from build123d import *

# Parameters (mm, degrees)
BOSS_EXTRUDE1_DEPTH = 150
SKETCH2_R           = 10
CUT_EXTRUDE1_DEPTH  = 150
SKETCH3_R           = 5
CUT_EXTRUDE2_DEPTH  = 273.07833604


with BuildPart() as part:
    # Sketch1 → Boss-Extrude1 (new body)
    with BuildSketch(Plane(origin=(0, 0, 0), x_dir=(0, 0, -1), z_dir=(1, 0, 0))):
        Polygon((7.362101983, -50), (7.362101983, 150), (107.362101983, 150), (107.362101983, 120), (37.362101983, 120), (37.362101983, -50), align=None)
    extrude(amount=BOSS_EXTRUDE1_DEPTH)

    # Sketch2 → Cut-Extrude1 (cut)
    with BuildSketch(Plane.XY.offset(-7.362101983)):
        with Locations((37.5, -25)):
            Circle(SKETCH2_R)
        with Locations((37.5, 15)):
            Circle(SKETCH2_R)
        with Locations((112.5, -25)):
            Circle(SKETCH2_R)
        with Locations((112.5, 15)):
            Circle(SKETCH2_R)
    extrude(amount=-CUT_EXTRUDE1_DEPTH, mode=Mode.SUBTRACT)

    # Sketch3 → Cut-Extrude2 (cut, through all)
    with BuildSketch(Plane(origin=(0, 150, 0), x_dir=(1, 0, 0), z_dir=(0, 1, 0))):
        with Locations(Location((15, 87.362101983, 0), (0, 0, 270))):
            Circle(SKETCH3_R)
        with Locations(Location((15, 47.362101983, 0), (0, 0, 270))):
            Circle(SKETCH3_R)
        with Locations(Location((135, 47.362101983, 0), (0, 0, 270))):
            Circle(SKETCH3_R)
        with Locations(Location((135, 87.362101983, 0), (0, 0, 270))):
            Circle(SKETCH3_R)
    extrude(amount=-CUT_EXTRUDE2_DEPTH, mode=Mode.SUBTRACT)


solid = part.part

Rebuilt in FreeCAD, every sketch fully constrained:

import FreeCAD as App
import Part
import Sketcher
from FreeCAD import Vector
Q = App.Units.Quantity

doc = App.newDocument("Part")
body = doc.addObject("PartDesign::Body", "Body")

# Sketch on YZ plane
sketch1 = body.newObject("Sketcher::SketchObject", "Sketch")
sketch1.AttachmentSupport = (doc.getObject("YZ_Plane"), [""])
sketch1.MapMode = "FlatFace"
sketch1.addGeometry([
    Part.LineSegment(Vector(150, -7, 0), Vector(-50, -7, 0)),  # 0
    Part.LineSegment(Vector(-50, -7, 0), Vector(-50, -37, 0)),  # 1
    Part.LineSegment(Vector(-50, -37, 0), Vector(120, -37, 0)),  # 2
    Part.LineSegment(Vector(120, -37, 0), Vector(120, -107, 0)),  # 3
    Part.LineSegment(Vector(120, -107, 0), Vector(150, -107, 0)),  # 4
    Part.LineSegment(Vector(150, -107, 0), Vector(150, -7, 0)),  # 5
], False)
sketch1.addConstraint([
    Sketcher.Constraint("Coincident", 0, 2, 1, 1),
    Sketcher.Constraint("Coincident", 1, 2, 2, 1),
    Sketcher.Constraint("Coincident", 2, 2, 3, 1),
    Sketcher.Constraint("Coincident", 3, 2, 4, 1),
    Sketcher.Constraint("Coincident", 4, 2, 5, 1),
    Sketcher.Constraint("Coincident", 5, 2, 0, 1),
    Sketcher.Constraint("Horizontal", 0),
    Sketcher.Constraint("Vertical", 1),
    Sketcher.Constraint("Horizontal", 2),
    Sketcher.Constraint("Vertical", 3),
    Sketcher.Constraint("Horizontal", 4),
    Sketcher.Constraint("Vertical", 5),
    Sketcher.Constraint("Equal", 4, 1),
    Sketcher.Constraint("DistanceX", 0, 2, 0, 1, Q("200 mm")),
    Sketcher.Constraint("DistanceX", 2, 1, 2, 2, Q("170 mm")),
    Sketcher.Constraint("DistanceY", 3, 2, 3, 1, Q("70 mm")),
    Sketcher.Constraint("DistanceX", 0, 2, -1, 1, Q("50 mm")),
    Sketcher.Constraint("DistanceY", 0, 2, -1, 1, Q("7.362102 mm")),
])
pad1 = body.newObject("PartDesign::Pad", "Pad")
pad1.Profile = sketch1
pad1.Length = 150

# Sketch on XY plane
sketch2 = body.newObject("Sketcher::SketchObject", "Sketch001")
sketch2.AttachmentSupport = (doc.getObject("XY_Plane"), [""])
sketch2.MapMode = "FlatFace"
sketch2.AttachmentOffset = App.Placement(Vector(0, 0, -7.362102), App.Rotation())
sketch2.addGeometry([
    Part.Circle(Vector(38, -25, 0), Vector(0, 0, 1), 10),
    Part.Circle(Vector(38, 15, 0), Vector(0, 0, 1), 10),
    Part.Circle(Vector(112, -25, 0), Vector(0, 0, 1), 10),
    Part.Circle(Vector(112, 15, 0), Vector(0, 0, 1), 10),
], False)
sketch2.addConstraint([
    Sketcher.Constraint("Equal", 0, 1),
    Sketcher.Constraint("Equal", 1, 2),
    Sketcher.Constraint("Equal", 2, 3),
    Sketcher.Constraint("Horizontal", 0, 3, 2, 3),
    Sketcher.Constraint("Horizontal", 1, 3, 3, 3),
    Sketcher.Constraint("Vertical", 0, 3, 1, 3),
    Sketcher.Constraint("Vertical", 2, 3, 3, 3),
    Sketcher.Constraint("Diameter", 0, Q("20 mm")),
    Sketcher.Constraint("DistanceY", 0, 3, -1, 1, Q("25 mm")),
    Sketcher.Constraint("DistanceY", -1, 1, 1, 3, Q("15 mm")),
    Sketcher.Constraint("DistanceX", 0, 3, 2, 3, Q("75 mm")),
    Sketcher.Constraint("DistanceX", -1, 1, 0, 3, Q("37.5 mm")),
])
pocket1 = body.newObject("PartDesign::Pocket", "Pocket")
pocket1.Profile = sketch2
pocket1.Length = 150

# Sketch on XZ plane
sketch3 = body.newObject("Sketcher::SketchObject", "Sketch002")
sketch3.AttachmentSupport = (doc.getObject("XZ_Plane"), [""])
sketch3.MapMode = "FlatFace"
sketch3.AttachmentOffset = App.Placement(Vector(0, 0, -150), App.Rotation())
sketch3.addGeometry([
    Part.Circle(Vector(15, -87, 0), Vector(0, 0, 1), 5),
    Part.Circle(Vector(15, -47, 0), Vector(0, 0, 1), 5),
    Part.Circle(Vector(135, -47, 0), Vector(0, 0, 1), 5),
    Part.Circle(Vector(135, -87, 0), Vector(0, 0, 1), 5),
], False)
sketch3.addConstraint([
    Sketcher.Constraint("Equal", 0, 1),
    Sketcher.Constraint("Equal", 1, 2),
    Sketcher.Constraint("Equal", 2, 3),
    Sketcher.Constraint("Horizontal", 1, 3, 2, 3),
    Sketcher.Constraint("Horizontal", 0, 3, 3, 3),
    Sketcher.Constraint("Vertical", 0, 3, 1, 3),
    Sketcher.Constraint("Vertical", 2, 3, 3, 3),
    Sketcher.Constraint("Diameter", 0, Q("10 mm")),
    Sketcher.Constraint("DistanceX", -1, 1, 0, 3, Q("15 mm")),
    Sketcher.Constraint("DistanceX", -1, 1, 2, 3, Q("135 mm")),
    Sketcher.Constraint("DistanceY", 0, 3, 1, 3, Q("40 mm")),
    Sketcher.Constraint("DistanceY", 0, 3, -1, 1, Q("87.362102 mm")),
])
pocket2 = body.newObject("PartDesign::Pocket", "Pocket001")
pocket2.Profile = sketch3
pocket2.Type = "ThroughAll"
pocket2.Reversed = True

doc.recompute()
